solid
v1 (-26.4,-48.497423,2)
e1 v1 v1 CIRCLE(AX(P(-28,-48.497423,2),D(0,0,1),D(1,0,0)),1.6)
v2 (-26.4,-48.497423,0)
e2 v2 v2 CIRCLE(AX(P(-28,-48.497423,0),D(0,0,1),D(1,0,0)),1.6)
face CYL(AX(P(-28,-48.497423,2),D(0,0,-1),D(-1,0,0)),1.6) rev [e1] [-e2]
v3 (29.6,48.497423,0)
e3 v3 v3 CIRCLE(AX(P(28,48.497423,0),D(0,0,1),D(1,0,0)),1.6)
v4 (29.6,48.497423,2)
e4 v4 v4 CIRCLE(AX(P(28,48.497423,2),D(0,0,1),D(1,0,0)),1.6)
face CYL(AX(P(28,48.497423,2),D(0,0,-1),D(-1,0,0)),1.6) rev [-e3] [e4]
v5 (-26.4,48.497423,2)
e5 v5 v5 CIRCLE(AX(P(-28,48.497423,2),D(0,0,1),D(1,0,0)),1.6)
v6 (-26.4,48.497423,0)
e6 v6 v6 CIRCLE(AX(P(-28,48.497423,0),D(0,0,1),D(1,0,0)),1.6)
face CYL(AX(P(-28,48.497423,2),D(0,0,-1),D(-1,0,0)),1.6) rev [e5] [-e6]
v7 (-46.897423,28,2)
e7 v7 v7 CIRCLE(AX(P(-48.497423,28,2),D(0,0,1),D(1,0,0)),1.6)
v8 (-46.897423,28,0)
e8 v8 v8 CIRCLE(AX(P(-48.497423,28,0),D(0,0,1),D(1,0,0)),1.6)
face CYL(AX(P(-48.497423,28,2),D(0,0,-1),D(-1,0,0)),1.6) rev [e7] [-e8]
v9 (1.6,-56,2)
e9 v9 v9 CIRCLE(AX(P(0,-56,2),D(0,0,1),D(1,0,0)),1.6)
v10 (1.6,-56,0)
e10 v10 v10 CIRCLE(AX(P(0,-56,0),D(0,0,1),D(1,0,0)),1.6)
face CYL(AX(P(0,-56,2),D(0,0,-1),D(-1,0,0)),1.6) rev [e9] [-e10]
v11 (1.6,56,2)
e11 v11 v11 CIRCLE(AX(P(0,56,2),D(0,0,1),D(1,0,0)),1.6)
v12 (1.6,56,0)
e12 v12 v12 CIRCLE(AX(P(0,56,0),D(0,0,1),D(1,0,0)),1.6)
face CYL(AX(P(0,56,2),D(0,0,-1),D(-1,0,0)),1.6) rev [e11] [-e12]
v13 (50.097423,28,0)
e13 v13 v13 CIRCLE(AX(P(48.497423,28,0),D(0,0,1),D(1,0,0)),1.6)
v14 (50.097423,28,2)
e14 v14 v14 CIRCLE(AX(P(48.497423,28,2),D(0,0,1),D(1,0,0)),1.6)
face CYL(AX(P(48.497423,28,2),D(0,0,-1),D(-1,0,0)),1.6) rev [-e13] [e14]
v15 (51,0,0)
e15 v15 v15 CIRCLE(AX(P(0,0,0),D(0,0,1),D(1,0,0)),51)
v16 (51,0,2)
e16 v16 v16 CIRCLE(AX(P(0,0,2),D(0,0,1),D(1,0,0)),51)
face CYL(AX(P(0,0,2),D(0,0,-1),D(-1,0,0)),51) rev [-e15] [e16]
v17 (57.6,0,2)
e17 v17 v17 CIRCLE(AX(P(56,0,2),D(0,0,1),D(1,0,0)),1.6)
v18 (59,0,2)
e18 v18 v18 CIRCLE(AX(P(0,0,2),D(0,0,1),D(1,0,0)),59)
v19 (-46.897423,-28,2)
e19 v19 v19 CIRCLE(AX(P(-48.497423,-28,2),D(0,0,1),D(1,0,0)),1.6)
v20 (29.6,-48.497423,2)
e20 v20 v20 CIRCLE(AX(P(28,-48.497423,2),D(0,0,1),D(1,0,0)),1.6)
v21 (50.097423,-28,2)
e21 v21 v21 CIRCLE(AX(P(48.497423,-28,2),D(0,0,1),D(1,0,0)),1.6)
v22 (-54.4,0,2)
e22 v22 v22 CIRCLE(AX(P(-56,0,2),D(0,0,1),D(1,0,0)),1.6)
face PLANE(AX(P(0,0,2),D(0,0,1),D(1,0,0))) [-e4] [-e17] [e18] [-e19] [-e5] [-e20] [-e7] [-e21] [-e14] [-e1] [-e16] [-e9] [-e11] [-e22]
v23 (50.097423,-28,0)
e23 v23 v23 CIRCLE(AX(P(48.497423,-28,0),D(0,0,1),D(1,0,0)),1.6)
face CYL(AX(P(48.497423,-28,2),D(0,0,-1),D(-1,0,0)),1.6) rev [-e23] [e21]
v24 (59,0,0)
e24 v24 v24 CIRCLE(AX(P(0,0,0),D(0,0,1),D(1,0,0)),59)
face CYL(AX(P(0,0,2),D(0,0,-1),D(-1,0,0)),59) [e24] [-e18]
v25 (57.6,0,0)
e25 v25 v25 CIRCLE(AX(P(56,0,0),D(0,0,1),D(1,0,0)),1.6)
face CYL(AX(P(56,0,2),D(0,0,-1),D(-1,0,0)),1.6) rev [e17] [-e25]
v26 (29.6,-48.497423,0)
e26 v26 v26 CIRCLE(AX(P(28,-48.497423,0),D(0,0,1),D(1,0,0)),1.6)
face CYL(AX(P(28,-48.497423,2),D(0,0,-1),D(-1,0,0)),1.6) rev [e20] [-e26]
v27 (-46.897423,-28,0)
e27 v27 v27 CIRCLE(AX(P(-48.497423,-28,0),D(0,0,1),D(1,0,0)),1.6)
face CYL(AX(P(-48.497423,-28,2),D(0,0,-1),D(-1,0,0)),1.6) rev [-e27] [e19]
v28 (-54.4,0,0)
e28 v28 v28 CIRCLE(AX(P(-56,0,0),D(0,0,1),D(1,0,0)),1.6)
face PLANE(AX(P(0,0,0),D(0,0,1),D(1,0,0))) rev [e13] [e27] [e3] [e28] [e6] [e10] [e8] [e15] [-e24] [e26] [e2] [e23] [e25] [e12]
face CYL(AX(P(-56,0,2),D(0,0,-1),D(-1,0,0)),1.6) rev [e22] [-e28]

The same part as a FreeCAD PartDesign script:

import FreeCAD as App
import Part
import Sketcher
from FreeCAD import Vector

doc = App.newDocument("Part")
body = doc.addObject("PartDesign::Body", "Body")

# Sketch on XY plane
sketch1 = body.newObject("Sketcher::SketchObject", "Sketch")
sketch1.AttachmentSupport = (doc.getObject("XY_Plane"), [""])
sketch1.MapMode = "FlatFace"
sketch1.addGeometry([
    Part.Circle(Vector(0, 0, 0), Vector(0, 0, 1), 59),  # 0
    Part.Circle(Vector(-28, -48.5, 0), Vector(0, 0, 1), 1.6),  # 1
    Part.Circle(Vector(-48.5, -28, 0), Vector(0, 0, 1), 1.6),  # 2
    Part.Circle(Vector(0, -56, 0), Vector(0, 0, 1), 1.6),  # 3
    Part.Circle(Vector(28, -48.5, 0), Vector(0, 0, 1), 1.6),  # 4
    Part.Circle(Vector(48.5, -28, 0), Vector(0, 0, 1), 1.6),  # 5
    Part.Circle(Vector(-56, 0, 0), Vector(0, 0, 1), 1.6),  # 6
    Part.Circle(Vector(-48.5, 28, 0), Vector(0, 0, 1), 1.6),  # 7
    Part.Circle(Vector(-28, 48.5, 0), Vector(0, 0, 1), 1.6),  # 8
    Part.Circle(Vector(0, 0, 0), Vector(0, 0, 1), 51),  # 9
    Part.Circle(Vector(56, 0, 0), Vector(0, 0, 1), 1.6),  # 10
    Part.Circle(Vector(48.5, 28, 0), Vector(0, 0, 1), 1.6),  # 11
    Part.Circle(Vector(0, 56, 0), Vector(0, 0, 1), 1.6),  # 12
    Part.Circle(Vector(28, 48.5, 0), Vector(0, 0, 1), 1.6),  # 13
], False)
sketch1.addConstraint([
    Sketcher.Constraint("Coincident", 0, 3, -1, 1),
    Sketcher.Constraint("Coincident", 9, 3, -1, 1),
    Sketcher.Constraint("Equal", 1, 2),
    Sketcher.Constraint("Equal", 2, 3),
    Sketcher.Constraint("Equal", 3, 4),
    Sketcher.Constraint("Equal", 4, 5),
    Sketcher.Constraint("Equal", 5, 6),
    Sketcher.Constraint("Equal", 6, 7),
    Sketcher.Constraint("Equal", 7, 8),
    Sketcher.Constraint("Equal", 8, 10),
    Sketcher.Constraint("Equal", 10, 11),
    Sketcher.Constraint("Equal", 11, 12),
    Sketcher.Constraint("Equal", 12, 13),
    Sketcher.Constraint("Symmetric", 5, 3, 7, 3, -1, 1),
    Sketcher.Constraint("Symmetric", 4, 3, 8, 3, -1, 1),
    Sketcher.Constraint("Symmetric", 6, 3, 10, 3, -1, 1),
    Sketcher.Constraint("Symmetric", 2, 3, 11, 3, -1, 1),
    Sketcher.Constraint("Symmetric", 3, 3, 12, 3, -1, 1),
    Sketcher.Constraint("Symmetric", 1, 3, 13, 3, -1, 1),
    Sketcher.Constraint("Symmetric", 1, 3, 4, 3, -2),
    Sketcher.Constraint("Symmetric", 2, 3, 5, 3, -2),
    Sketcher.Constraint("PointOnObject", 3, 3, -2),
    Sketcher.Constraint("PointOnObject", 6, 3, -1),
    Sketcher.Constraint("Diameter", 0, 118.0),
    Sketcher.Constraint("Diameter", 9, 102.0),
    Sketcher.Constraint("Diameter", 1, 3.2),
    Sketcher.Constraint("DistanceX", 1, 3, -1, 1, 28.0),
    Sketcher.Constraint("DistanceY", 2, 3, -1, 1, 28.0),
    Sketcher.Constraint("DistanceY", 3, 3, -1, 1, 56.0),
    Sketcher.Constraint("DistanceX", 6, 3, -1, 1, 56.0),
    Sketcher.Constraint("DistanceY", 1, 3, -1, 1, 48.497423),
    Sketcher.Constraint("DistanceX", 2, 3, -1, 1, 48.497423),
])
pad1 = body.newObject("PartDesign::Pad", "Pad")
pad1.Profile = sketch1
pad1.Length = 2

doc.recompute()
